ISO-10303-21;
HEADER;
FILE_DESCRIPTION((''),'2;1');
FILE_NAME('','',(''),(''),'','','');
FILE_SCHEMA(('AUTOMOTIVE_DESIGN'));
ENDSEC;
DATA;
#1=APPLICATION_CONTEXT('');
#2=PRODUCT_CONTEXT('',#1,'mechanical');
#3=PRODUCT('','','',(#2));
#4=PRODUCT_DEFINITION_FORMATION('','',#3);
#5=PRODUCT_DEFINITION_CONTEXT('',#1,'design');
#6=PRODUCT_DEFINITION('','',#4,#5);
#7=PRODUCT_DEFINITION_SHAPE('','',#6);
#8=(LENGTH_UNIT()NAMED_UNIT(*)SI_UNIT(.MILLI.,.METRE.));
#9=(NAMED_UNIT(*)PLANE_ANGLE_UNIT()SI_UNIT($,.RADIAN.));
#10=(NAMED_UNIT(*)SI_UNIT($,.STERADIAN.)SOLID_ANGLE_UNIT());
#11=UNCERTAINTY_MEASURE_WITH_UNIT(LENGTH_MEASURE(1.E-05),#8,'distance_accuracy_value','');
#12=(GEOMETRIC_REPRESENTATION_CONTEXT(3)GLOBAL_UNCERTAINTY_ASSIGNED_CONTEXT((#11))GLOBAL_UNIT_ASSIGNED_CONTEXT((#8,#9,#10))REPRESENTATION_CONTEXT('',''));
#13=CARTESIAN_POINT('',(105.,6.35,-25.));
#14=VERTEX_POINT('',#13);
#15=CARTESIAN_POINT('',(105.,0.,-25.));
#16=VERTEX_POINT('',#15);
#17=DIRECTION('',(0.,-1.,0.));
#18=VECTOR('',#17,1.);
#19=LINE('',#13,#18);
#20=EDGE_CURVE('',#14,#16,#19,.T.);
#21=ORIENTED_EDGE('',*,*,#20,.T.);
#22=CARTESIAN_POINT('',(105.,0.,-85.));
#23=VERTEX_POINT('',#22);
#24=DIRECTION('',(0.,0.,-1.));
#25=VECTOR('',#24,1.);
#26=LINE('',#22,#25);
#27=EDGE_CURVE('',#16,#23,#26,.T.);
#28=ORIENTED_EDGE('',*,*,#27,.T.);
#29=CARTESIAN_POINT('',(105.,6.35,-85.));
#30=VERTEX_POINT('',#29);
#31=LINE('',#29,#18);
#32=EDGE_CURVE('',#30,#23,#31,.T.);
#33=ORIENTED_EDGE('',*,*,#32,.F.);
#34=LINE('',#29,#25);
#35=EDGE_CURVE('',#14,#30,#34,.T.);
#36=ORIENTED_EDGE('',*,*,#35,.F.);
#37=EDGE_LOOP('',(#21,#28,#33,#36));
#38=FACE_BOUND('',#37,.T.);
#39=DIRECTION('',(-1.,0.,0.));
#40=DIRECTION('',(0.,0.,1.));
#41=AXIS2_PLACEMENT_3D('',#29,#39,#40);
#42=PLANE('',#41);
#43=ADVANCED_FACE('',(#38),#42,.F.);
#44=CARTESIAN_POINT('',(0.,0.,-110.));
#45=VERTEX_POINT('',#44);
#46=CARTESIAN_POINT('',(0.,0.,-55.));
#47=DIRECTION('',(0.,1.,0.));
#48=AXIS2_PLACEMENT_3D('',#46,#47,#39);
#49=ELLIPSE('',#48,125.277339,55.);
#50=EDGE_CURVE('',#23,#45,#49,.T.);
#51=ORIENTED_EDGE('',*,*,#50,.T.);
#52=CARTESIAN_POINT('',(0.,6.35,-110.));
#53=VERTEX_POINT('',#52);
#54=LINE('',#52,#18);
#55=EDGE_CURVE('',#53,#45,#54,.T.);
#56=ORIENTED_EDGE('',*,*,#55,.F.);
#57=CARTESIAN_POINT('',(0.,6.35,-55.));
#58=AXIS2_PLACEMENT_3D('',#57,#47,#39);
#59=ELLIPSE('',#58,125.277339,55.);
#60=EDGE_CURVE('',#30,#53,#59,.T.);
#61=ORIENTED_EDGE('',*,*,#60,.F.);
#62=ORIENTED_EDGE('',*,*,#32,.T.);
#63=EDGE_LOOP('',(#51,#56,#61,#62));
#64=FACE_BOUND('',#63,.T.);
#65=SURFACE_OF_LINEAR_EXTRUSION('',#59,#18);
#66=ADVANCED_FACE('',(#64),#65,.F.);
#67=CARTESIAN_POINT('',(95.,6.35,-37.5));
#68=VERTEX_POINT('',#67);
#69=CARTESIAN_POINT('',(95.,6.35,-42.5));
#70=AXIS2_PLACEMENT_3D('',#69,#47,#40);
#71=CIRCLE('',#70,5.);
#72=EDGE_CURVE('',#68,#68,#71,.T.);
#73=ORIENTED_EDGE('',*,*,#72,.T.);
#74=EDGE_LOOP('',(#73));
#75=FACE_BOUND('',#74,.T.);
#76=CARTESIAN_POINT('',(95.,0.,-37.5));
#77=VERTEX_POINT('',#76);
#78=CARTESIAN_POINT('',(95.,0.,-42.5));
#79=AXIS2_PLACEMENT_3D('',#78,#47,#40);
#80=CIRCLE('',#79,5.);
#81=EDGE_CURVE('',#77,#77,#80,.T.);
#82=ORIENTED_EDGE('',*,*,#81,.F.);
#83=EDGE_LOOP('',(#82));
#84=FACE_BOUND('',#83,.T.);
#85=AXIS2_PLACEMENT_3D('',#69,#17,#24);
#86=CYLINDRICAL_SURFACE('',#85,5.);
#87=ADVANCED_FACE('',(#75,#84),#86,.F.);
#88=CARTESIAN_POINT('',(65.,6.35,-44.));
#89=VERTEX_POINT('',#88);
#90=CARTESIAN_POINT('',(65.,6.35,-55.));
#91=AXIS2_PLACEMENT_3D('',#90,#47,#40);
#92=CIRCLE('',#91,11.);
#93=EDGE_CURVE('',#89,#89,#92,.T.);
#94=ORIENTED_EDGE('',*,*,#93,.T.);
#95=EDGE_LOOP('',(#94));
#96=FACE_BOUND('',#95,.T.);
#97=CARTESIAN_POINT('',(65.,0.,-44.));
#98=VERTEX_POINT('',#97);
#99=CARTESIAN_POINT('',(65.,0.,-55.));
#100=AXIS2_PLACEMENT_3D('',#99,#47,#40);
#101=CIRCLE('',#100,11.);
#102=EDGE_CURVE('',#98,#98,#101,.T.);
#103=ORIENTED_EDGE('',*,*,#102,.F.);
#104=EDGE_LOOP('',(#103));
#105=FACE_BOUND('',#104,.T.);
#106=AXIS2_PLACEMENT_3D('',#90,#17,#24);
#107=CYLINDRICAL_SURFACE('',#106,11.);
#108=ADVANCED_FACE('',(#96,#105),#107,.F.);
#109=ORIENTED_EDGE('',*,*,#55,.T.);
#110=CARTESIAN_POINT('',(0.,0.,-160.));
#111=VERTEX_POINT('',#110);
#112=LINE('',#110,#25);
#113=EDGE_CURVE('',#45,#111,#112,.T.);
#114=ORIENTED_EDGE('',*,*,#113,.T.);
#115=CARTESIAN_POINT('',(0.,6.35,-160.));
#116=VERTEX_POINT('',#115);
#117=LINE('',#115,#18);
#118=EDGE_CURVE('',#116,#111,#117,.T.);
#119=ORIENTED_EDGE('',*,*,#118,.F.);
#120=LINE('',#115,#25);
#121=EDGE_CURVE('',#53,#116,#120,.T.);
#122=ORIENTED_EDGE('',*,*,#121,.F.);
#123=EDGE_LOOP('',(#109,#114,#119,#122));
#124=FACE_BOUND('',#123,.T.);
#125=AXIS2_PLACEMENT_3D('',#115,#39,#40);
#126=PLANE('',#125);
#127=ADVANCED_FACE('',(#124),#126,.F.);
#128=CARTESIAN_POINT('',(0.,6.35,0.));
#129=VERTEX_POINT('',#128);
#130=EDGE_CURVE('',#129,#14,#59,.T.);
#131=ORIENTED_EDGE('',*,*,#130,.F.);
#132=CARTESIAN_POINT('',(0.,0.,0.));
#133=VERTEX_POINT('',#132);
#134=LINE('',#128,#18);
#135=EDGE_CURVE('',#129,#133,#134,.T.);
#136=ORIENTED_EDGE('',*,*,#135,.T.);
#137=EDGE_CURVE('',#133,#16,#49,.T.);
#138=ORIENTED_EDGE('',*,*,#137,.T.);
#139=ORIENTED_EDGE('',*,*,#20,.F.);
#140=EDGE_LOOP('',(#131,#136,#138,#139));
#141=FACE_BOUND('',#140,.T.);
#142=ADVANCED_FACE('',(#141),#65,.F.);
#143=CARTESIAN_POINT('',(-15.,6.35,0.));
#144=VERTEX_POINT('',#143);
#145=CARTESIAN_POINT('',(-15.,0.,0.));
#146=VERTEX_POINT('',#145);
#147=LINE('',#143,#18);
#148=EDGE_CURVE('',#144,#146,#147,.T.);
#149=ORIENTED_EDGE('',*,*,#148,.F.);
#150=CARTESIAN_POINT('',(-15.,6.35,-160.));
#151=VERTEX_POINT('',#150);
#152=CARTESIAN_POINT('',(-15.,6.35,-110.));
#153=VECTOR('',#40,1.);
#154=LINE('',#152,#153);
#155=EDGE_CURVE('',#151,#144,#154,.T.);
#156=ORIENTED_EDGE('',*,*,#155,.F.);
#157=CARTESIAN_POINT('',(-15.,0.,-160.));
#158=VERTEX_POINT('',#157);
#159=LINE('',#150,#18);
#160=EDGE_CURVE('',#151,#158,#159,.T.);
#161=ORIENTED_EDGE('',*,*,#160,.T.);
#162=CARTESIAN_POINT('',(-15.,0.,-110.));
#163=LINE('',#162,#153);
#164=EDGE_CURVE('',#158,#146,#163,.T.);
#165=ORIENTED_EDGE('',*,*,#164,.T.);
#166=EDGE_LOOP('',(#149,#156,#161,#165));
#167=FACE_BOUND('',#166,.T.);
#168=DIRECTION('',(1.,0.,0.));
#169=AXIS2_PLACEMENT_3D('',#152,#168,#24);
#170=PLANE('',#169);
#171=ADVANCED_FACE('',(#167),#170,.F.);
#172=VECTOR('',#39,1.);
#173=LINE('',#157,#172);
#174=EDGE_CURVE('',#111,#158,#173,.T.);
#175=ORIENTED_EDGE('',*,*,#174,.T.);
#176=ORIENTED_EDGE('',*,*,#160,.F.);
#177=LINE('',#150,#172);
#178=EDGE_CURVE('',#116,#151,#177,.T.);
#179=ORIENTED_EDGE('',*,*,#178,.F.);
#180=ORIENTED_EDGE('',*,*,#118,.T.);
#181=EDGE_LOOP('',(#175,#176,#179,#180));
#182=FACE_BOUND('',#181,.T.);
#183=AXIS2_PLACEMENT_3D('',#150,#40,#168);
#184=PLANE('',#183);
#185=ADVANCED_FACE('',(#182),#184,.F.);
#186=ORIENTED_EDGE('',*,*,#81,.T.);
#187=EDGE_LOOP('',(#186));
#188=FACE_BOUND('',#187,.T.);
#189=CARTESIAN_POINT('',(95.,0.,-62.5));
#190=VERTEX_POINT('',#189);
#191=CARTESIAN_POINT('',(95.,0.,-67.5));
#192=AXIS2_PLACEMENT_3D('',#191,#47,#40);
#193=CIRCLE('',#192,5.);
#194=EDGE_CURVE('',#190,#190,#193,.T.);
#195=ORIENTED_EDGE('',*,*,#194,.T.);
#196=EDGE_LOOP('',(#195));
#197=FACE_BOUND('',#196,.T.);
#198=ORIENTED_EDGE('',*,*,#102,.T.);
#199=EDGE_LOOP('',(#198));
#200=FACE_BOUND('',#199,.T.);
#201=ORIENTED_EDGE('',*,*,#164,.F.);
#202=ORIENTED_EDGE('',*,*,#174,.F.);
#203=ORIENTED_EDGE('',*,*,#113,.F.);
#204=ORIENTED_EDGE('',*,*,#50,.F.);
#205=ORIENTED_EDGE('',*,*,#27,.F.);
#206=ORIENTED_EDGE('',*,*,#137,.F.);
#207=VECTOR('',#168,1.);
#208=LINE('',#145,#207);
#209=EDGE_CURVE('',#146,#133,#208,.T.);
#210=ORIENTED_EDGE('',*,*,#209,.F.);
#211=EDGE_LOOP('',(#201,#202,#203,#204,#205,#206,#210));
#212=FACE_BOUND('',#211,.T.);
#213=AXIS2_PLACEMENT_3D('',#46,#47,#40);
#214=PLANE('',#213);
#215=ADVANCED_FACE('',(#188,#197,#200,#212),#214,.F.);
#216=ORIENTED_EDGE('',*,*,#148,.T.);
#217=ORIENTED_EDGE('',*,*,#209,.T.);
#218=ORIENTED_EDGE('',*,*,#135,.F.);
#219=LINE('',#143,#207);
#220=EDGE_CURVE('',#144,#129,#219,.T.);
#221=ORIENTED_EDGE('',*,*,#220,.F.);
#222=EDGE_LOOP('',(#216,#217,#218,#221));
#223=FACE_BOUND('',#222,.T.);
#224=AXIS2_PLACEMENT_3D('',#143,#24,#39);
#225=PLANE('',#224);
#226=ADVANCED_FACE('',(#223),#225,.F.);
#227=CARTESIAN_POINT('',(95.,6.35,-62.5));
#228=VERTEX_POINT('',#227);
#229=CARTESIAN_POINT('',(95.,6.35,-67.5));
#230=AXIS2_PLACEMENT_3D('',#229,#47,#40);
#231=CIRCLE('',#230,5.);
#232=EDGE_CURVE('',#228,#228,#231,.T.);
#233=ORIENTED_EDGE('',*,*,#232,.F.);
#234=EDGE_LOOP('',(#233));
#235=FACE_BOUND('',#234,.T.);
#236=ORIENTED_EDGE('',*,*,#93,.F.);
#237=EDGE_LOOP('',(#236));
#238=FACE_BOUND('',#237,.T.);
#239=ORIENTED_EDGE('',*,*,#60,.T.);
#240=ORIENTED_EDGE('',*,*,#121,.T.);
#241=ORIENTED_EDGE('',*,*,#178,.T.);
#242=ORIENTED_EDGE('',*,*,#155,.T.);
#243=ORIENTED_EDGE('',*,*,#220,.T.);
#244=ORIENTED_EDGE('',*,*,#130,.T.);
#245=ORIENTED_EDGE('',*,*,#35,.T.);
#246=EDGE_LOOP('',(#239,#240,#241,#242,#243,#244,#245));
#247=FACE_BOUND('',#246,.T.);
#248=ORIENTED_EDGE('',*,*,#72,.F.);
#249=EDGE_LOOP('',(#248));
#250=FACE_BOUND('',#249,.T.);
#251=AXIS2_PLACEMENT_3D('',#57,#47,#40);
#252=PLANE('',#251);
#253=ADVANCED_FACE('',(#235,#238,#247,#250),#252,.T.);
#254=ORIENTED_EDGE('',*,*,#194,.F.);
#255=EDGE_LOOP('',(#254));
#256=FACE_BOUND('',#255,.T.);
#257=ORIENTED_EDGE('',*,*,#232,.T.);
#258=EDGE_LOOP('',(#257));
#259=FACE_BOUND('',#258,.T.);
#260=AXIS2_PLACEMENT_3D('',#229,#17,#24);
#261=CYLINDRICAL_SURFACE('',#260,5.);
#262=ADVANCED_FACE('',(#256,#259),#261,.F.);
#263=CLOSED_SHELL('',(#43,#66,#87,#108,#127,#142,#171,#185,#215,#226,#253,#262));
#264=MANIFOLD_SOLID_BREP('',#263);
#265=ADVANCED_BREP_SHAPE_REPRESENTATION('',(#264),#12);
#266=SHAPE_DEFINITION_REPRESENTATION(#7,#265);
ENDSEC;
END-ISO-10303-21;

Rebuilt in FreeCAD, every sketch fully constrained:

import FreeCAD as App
import Part
import Sketcher

V = App.Vector


def add_polygon(sketch, points):
    """Adds a closed chain of lines whose ends are joined by coincident constraints."""
    first, n = sketch.GeometryCount, len(points)
    for a, b in zip(points, points[1:] + points[:1]):
        sketch.addGeometry(Part.LineSegment(App.Vector(*a, 0), App.Vector(*b, 0)), False)
    for i in range(n):
        sketch.addConstraint(Sketcher.Constraint("Coincident", first + i, 2, first + (i + 1) % n, 1))

doc = App.newDocument("Part")
params = doc.addObject("Spreadsheet::Sheet", "Params")
for row, (alias, value) in enumerate([
    ("pad1_length", "6.35 mm"),
    ("sketch2_diameter", "10 mm"),
    ("pocket1_length", "6.35 mm"),
    ("sketch3_diameter", "22 mm"),
    ("sketch4_width", "15 mm"),
    ("sketch4_height", "110 mm"),
    ("pad2_length", "6.35 mm"),
    ("sketch5_width", "15 mm"),
    ("sketch5_height", "50 mm"),
    ("pad3_length", "6.35 mm"),
], start=1):
    params.set(f"A{row}", alias)
    params.set(f"B{row}", "=" + value)
    params.setAlias(f"B{row}", alias)

body = doc.addObject("PartDesign::Body", "Body")

# Sketch on XZ plane
sketch1 = doc.addObject("Sketcher::SketchObject", "Sketch")
body.addObject(sketch1)
sketch1.AttachmentSupport = (doc.XZ_Plane, [""])
sketch1.MapMode = "FlatFace"
sketch1.addGeometry([
    Part.LineSegment(V(0, -110, 0), V(0, 0, 0)),
    Part.BSplineCurve([V(0, 0, 0), V(67.941176, 0, 0), V(105, -25, 0)], [3, 3], [1.570796327, 2.564661308], False, 2, [1, 0.879049073, 1], False),
    Part.LineSegment(V(105, -25, 0), V(105, -85, 0)),
    Part.BSplineCurve([V(105, -85, 0), V(67.941176, -110, 0), V(0, -110, 0)], [3, 3], [3.718523999, 4.71238898], False, 2, [1, 0.879049073, 1], False),
], False)
sketch1.addConstraint([
    Sketcher.Constraint("Block", 1),
    Sketcher.Constraint("Block", 3),
    Sketcher.Constraint("Coincident", 0, 2, 1, 1),
    Sketcher.Constraint("Coincident", 1, 2, 2, 1),
    Sketcher.Constraint("Coincident", 2, 2, 3, 1),
    Sketcher.Constraint("Coincident", 3, 2, 0, 1),
])
pad1 = doc.addObject("PartDesign::Pad", "Pad")
body.addObject(pad1)
pad1.Profile = sketch1
pad1.setExpression("Length", "Params.pad1_length")
pad1.Reversed = True

# Sketch on XZ plane
sketch2 = doc.addObject("Sketcher::SketchObject", "Sketch001")
body.addObject(sketch2)
sketch2.AttachmentSupport = (doc.XZ_Plane, [""])
sketch2.MapMode = "FlatFace"
sketch2.addGeometry([
    Part.Circle(V(95, -68, 0), V(0, 0, 1), 5),
    Part.Circle(V(95, -42, 0), V(0, 0, 1), 5),
], False)
sketch2.addConstraint([
    Sketcher.Constraint("Equal", 0, 1),
    Sketcher.Constraint("Vertical", 0, 3, 1, 3),
    Sketcher.Constraint("Diameter", 0, 10.0),
    Sketcher.Constraint("DistanceX", -1, 1, 0, 3, 95.0),
    Sketcher.Constraint("DistanceY", 0, 3, 1, 3, 25.0),
    Sketcher.Constraint("DistanceY", 0, 3, -1, 1, 67.5),
])
sketch2.setExpression("Constraints[2]", "Params.sketch2_diameter")
pocket1 = doc.addObject("PartDesign::Pocket", "Pocket")
body.addObject(pocket1)
pocket1.Profile = sketch2
pocket1.setExpression("Length", "Params.pocket1_length")

# Sketch on XZ plane
sketch3 = doc.addObject("Sketcher::SketchObject", "Sketch002")
body.addObject(sketch3)
sketch3.AttachmentSupport = (doc.XZ_Plane, [""])
sketch3.MapMode = "FlatFace"
sketch3.addGeometry(Part.Circle(V(65, -55, 0), V(0, 0, 1), 11), False)
sketch3.addConstraint([
    Sketcher.Constraint("Diameter", 0, 22.0),
    Sketcher.Constraint("DistanceX", -1, 1, 0, 3, 65.0),
    Sketcher.Constraint("DistanceY", 0, 3, -1, 1, 55.0),
])
sketch3.setExpression("Constraints[0]", "Params.sketch3_diameter")
pocket2 = doc.addObject("PartDesign::Pocket", "Pocket001")
body.addObject(pocket2)
pocket2.Profile = sketch3
pocket2.Type = "ThroughAll"

# Sketch on XZ plane
sketch4 = doc.addObject("Sketcher::SketchObject", "Sketch003")
body.addObject(sketch4)
sketch4.AttachmentSupport = (doc.XZ_Plane, [""])
sketch4.MapMode = "FlatFace"
add_polygon(sketch4, [(-15, -110), (-15, 0), (0, 0), (0, -110)])  # lines 0-3
sketch4.addConstraint([
    Sketcher.Constraint("Vertical", 0),
    Sketcher.Constraint("Horizontal", 1),
    Sketcher.Constraint("Vertical", 2),
    Sketcher.Constraint("Horizontal", 3),
    Sketcher.Constraint("Coincident", 1, 2, -1, 1),
    Sketcher.Constraint("DistanceX", 1, 1, 1, 2, 15.0),
    Sketcher.Constraint("DistanceY", 0, 1, 0, 2, 110.0),
])
sketch4.setExpression("Constraints[9]", "Params.sketch4_width")
sketch4.setExpression("Constraints[10]", "Params.sketch4_height")
pad2 = doc.addObject("PartDesign::Pad", "Pad001")
body.addObject(pad2)
pad2.Profile = sketch4
pad2.setExpression("Length", "Params.pad2_length")
pad2.Reversed = True

# Sketch on XZ plane
sketch5 = doc.addObject("Sketcher::SketchObject", "Sketch004")
body.addObject(sketch5)
sketch5.AttachmentSupport = (doc.XZ_Plane, [""])
sketch5.MapMode = "FlatFace"
add_polygon(sketch5, [(-15, -160), (-15, -110), (0, -110), (0, -160)])  # lines 0-3
sketch5.addConstraint([
    Sketcher.Constraint("Vertical", 0),
    Sketcher.Constraint("Horizontal", 1),
    Sketcher.Constraint("Vertical", 2),
    Sketcher.Constraint("Horizontal", 3),
    Sketcher.Constraint("PointOnObject", 1, 2, -2),
    Sketcher.Constraint("DistanceX", 1, 1, 1, 2, 15.0),
    Sketcher.Constraint("DistanceY", 0, 1, 0, 2, 50.0),
    Sketcher.Constraint("DistanceY", 0, 2, -1, 1, 110.0),
])
sketch5.setExpression("Constraints[9]", "Params.sketch5_width")
sketch5.setExpression("Constraints[10]", "Params.sketch5_height")
pad3 = doc.addObject("PartDesign::Pad", "Pad002")
body.addObject(pad3)
pad3.Profile = sketch5
pad3.setExpression("Length", "Params.pad3_length")
pad3.Reversed = True

doc.recompute()
